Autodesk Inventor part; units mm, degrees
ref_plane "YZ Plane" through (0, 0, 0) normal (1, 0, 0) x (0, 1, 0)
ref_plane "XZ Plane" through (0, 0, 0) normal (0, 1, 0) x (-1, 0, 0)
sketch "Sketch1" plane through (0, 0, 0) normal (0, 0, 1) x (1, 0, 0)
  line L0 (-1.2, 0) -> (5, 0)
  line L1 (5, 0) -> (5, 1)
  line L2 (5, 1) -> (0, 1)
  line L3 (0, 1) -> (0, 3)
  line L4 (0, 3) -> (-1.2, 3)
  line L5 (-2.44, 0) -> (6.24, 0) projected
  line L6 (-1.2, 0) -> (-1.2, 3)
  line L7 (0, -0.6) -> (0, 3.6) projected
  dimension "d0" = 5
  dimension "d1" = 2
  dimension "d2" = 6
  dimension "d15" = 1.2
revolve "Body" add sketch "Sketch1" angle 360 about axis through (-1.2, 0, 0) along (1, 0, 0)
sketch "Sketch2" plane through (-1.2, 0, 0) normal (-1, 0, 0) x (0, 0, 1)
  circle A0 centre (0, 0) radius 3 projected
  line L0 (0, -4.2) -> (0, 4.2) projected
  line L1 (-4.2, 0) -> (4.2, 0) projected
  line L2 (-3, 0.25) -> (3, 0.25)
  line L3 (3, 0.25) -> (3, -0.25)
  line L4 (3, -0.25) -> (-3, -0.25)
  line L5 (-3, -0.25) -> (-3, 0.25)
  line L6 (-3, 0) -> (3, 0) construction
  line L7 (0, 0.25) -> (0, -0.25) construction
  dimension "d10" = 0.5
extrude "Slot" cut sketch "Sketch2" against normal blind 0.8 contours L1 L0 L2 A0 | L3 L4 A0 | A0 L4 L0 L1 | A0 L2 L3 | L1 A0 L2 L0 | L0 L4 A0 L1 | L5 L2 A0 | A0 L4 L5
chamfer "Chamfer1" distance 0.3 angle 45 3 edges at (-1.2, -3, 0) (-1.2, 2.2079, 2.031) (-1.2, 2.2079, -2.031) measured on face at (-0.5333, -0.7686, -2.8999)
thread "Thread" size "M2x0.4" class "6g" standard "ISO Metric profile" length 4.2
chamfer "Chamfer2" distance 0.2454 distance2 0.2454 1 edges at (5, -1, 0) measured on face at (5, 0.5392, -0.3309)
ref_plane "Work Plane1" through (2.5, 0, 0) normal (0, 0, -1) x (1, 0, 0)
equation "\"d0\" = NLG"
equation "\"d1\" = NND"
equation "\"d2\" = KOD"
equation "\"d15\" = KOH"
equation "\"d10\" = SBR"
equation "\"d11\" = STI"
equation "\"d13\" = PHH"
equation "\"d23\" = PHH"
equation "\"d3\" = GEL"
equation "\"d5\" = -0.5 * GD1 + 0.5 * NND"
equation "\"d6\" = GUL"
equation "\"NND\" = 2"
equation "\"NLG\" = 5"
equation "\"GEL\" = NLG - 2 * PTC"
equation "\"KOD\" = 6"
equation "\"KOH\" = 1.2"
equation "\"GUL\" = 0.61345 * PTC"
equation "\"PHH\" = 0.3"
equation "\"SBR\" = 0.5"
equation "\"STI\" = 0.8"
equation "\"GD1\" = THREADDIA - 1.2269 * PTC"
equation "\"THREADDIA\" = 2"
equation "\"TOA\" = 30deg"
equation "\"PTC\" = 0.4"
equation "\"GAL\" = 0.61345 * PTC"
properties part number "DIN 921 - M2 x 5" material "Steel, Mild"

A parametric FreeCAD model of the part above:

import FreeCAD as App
import Part
import Sketcher


def edges_at(feature, points):
    """Names of the edges that pass closest to the given points."""
    edges = feature.Shape.Edges
    near = lambda p: min(range(len(edges)), key=lambda i: edges[i].distToShape(Part.Vertex(*p))[0])
    return sorted({f"Edge{near(p) + 1}" for p in points})

doc = App.newDocument("Part")
body = doc.addObject("PartDesign::Body", "Body")

# Sketch on XY plane
sketch1 = body.newObject("Sketcher::SketchObject", "Sketch")
sketch1.AttachmentSupport = (doc.getObject("XY_Plane"), [""])
sketch1.MapMode = "FlatFace"
sketch1.addGeometry([
    Part.LineSegment(App.Vector(-1.2, 3, 0), App.Vector(-1.2, 0, 0)),  # 0
    Part.LineSegment(App.Vector(-1.2, 0, 0), App.Vector(5, 0, 0)),  # 1
    Part.LineSegment(App.Vector(5, 0, 0), App.Vector(5, 1, 0)),  # 2
    Part.LineSegment(App.Vector(5, 1, 0), App.Vector(0, 1, 0)),  # 3
    Part.LineSegment(App.Vector(0, 1, 0), App.Vector(0, 3, 0)),  # 4
    Part.LineSegment(App.Vector(0, 3, 0), App.Vector(-1.2, 3, 0)),  # 5
], False)
sketch1.addConstraint([
    Sketcher.Constraint("Coincident", 0, 2, 1, 1),
    Sketcher.Constraint("Coincident", 1, 2, 2, 1),
    Sketcher.Constraint("Coincident", 2, 2, 3, 1),
    Sketcher.Constraint("Coincident", 3, 2, 4, 1),
    Sketcher.Constraint("Coincident", 4, 2, 5, 1),
    Sketcher.Constraint("Coincident", 5, 2, 0, 1),
    Sketcher.Constraint("Vertical", 0),
    Sketcher.Constraint("Horizontal", 1),
    Sketcher.Constraint("Vertical", 2),
    Sketcher.Constraint("Horizontal", 3),
    Sketcher.Constraint("Vertical", 4),
    Sketcher.Constraint("Horizontal", 5),
    Sketcher.Constraint("PointOnObject", 0, 2, -1),
    Sketcher.Constraint("PointOnObject", 3, 2, -2),
    Sketcher.Constraint("DistanceX", 3, 2, 3, 1, 5.0),
    Sketcher.Constraint("DistanceY", 4, 1, 4, 2, 2.0),
    Sketcher.Constraint("DistanceX", 5, 2, 5, 1, 1.2),
    Sketcher.Constraint("DistanceY", 0, 2, 0, 1, 3.0),
])
revolution = body.newObject("PartDesign::Revolution", "Revolution")
revolution.Profile = sketch1
revolution.ReferenceAxis = (sketch1, ["H_Axis"])
revolution.Angle = 360

# Sketch on YZ plane
sketch2 = body.newObject("Sketcher::SketchObject", "Sketch001")
sketch2.AttachmentSupport = (doc.getObject("YZ_Plane"), [""])
sketch2.MapMode = "FlatFace"
sketch2.AttachmentOffset = App.Placement(App.Vector(0, 0, -1.2), App.Rotation())
sketch2.addGeometry([
    Part.LineSegment(App.Vector(0.2, -3, 0), App.Vector(-0.2, -3, 0)),
    Part.LineSegment(App.Vector(-0.2, -3, 0), App.Vector(-0.2, 3, 0)),
    Part.LineSegment(App.Vector(-0.2, 3, 0), App.Vector(0.2, 3, 0)),
    Part.LineSegment(App.Vector(0.2, 3, 0), App.Vector(0.2, -3, 0)),
], False)
sketch2.addConstraint([
    Sketcher.Constraint("Coincident", 0, 2, 1, 1),
    Sketcher.Constraint("Coincident", 1, 2, 2, 1),
    Sketcher.Constraint("Coincident", 2, 2, 3, 1),
    Sketcher.Constraint("Coincident", 3, 2, 0, 1),
    Sketcher.Constraint("Horizontal", 0),
    Sketcher.Constraint("Vertical", 1),
    Sketcher.Constraint("Horizontal", 2),
    Sketcher.Constraint("Vertical", 3),
    Sketcher.Constraint("Symmetric", 0, 2, 2, 2, -1, 1),
    Sketcher.Constraint("DistanceX", 0, 2, 0, 1, 0.5),
    Sketcher.Constraint("DistanceY", 1, 1, 1, 2, 6.0),
])
pocket1 = body.newObject("PartDesign::Pocket", "Pocket")
pocket1.Profile = sketch2
pocket1.Length = 0.8
pocket1.Reversed = True
doc.recompute()

chamfer = body.newObject("PartDesign::Chamfer", "Chamfer")
chamfer.Base = (pocket1, edges_at(pocket1, [(-1.2, -3, 0), (-1.2, 2.208, 2.031), (-1.2, 2.208, -2.031)]))
chamfer.Size = 0.3
doc.recompute()

chamfer2 = body.newObject("PartDesign::Chamfer", "Chamfer001")
chamfer2.Base = (chamfer, edges_at(chamfer, [(5, -1, 0)]))
chamfer2.ChamferType = "Two distances"
chamfer2.Size = 0.2454
chamfer2.Size2 = 0.2454

doc.recompute()
